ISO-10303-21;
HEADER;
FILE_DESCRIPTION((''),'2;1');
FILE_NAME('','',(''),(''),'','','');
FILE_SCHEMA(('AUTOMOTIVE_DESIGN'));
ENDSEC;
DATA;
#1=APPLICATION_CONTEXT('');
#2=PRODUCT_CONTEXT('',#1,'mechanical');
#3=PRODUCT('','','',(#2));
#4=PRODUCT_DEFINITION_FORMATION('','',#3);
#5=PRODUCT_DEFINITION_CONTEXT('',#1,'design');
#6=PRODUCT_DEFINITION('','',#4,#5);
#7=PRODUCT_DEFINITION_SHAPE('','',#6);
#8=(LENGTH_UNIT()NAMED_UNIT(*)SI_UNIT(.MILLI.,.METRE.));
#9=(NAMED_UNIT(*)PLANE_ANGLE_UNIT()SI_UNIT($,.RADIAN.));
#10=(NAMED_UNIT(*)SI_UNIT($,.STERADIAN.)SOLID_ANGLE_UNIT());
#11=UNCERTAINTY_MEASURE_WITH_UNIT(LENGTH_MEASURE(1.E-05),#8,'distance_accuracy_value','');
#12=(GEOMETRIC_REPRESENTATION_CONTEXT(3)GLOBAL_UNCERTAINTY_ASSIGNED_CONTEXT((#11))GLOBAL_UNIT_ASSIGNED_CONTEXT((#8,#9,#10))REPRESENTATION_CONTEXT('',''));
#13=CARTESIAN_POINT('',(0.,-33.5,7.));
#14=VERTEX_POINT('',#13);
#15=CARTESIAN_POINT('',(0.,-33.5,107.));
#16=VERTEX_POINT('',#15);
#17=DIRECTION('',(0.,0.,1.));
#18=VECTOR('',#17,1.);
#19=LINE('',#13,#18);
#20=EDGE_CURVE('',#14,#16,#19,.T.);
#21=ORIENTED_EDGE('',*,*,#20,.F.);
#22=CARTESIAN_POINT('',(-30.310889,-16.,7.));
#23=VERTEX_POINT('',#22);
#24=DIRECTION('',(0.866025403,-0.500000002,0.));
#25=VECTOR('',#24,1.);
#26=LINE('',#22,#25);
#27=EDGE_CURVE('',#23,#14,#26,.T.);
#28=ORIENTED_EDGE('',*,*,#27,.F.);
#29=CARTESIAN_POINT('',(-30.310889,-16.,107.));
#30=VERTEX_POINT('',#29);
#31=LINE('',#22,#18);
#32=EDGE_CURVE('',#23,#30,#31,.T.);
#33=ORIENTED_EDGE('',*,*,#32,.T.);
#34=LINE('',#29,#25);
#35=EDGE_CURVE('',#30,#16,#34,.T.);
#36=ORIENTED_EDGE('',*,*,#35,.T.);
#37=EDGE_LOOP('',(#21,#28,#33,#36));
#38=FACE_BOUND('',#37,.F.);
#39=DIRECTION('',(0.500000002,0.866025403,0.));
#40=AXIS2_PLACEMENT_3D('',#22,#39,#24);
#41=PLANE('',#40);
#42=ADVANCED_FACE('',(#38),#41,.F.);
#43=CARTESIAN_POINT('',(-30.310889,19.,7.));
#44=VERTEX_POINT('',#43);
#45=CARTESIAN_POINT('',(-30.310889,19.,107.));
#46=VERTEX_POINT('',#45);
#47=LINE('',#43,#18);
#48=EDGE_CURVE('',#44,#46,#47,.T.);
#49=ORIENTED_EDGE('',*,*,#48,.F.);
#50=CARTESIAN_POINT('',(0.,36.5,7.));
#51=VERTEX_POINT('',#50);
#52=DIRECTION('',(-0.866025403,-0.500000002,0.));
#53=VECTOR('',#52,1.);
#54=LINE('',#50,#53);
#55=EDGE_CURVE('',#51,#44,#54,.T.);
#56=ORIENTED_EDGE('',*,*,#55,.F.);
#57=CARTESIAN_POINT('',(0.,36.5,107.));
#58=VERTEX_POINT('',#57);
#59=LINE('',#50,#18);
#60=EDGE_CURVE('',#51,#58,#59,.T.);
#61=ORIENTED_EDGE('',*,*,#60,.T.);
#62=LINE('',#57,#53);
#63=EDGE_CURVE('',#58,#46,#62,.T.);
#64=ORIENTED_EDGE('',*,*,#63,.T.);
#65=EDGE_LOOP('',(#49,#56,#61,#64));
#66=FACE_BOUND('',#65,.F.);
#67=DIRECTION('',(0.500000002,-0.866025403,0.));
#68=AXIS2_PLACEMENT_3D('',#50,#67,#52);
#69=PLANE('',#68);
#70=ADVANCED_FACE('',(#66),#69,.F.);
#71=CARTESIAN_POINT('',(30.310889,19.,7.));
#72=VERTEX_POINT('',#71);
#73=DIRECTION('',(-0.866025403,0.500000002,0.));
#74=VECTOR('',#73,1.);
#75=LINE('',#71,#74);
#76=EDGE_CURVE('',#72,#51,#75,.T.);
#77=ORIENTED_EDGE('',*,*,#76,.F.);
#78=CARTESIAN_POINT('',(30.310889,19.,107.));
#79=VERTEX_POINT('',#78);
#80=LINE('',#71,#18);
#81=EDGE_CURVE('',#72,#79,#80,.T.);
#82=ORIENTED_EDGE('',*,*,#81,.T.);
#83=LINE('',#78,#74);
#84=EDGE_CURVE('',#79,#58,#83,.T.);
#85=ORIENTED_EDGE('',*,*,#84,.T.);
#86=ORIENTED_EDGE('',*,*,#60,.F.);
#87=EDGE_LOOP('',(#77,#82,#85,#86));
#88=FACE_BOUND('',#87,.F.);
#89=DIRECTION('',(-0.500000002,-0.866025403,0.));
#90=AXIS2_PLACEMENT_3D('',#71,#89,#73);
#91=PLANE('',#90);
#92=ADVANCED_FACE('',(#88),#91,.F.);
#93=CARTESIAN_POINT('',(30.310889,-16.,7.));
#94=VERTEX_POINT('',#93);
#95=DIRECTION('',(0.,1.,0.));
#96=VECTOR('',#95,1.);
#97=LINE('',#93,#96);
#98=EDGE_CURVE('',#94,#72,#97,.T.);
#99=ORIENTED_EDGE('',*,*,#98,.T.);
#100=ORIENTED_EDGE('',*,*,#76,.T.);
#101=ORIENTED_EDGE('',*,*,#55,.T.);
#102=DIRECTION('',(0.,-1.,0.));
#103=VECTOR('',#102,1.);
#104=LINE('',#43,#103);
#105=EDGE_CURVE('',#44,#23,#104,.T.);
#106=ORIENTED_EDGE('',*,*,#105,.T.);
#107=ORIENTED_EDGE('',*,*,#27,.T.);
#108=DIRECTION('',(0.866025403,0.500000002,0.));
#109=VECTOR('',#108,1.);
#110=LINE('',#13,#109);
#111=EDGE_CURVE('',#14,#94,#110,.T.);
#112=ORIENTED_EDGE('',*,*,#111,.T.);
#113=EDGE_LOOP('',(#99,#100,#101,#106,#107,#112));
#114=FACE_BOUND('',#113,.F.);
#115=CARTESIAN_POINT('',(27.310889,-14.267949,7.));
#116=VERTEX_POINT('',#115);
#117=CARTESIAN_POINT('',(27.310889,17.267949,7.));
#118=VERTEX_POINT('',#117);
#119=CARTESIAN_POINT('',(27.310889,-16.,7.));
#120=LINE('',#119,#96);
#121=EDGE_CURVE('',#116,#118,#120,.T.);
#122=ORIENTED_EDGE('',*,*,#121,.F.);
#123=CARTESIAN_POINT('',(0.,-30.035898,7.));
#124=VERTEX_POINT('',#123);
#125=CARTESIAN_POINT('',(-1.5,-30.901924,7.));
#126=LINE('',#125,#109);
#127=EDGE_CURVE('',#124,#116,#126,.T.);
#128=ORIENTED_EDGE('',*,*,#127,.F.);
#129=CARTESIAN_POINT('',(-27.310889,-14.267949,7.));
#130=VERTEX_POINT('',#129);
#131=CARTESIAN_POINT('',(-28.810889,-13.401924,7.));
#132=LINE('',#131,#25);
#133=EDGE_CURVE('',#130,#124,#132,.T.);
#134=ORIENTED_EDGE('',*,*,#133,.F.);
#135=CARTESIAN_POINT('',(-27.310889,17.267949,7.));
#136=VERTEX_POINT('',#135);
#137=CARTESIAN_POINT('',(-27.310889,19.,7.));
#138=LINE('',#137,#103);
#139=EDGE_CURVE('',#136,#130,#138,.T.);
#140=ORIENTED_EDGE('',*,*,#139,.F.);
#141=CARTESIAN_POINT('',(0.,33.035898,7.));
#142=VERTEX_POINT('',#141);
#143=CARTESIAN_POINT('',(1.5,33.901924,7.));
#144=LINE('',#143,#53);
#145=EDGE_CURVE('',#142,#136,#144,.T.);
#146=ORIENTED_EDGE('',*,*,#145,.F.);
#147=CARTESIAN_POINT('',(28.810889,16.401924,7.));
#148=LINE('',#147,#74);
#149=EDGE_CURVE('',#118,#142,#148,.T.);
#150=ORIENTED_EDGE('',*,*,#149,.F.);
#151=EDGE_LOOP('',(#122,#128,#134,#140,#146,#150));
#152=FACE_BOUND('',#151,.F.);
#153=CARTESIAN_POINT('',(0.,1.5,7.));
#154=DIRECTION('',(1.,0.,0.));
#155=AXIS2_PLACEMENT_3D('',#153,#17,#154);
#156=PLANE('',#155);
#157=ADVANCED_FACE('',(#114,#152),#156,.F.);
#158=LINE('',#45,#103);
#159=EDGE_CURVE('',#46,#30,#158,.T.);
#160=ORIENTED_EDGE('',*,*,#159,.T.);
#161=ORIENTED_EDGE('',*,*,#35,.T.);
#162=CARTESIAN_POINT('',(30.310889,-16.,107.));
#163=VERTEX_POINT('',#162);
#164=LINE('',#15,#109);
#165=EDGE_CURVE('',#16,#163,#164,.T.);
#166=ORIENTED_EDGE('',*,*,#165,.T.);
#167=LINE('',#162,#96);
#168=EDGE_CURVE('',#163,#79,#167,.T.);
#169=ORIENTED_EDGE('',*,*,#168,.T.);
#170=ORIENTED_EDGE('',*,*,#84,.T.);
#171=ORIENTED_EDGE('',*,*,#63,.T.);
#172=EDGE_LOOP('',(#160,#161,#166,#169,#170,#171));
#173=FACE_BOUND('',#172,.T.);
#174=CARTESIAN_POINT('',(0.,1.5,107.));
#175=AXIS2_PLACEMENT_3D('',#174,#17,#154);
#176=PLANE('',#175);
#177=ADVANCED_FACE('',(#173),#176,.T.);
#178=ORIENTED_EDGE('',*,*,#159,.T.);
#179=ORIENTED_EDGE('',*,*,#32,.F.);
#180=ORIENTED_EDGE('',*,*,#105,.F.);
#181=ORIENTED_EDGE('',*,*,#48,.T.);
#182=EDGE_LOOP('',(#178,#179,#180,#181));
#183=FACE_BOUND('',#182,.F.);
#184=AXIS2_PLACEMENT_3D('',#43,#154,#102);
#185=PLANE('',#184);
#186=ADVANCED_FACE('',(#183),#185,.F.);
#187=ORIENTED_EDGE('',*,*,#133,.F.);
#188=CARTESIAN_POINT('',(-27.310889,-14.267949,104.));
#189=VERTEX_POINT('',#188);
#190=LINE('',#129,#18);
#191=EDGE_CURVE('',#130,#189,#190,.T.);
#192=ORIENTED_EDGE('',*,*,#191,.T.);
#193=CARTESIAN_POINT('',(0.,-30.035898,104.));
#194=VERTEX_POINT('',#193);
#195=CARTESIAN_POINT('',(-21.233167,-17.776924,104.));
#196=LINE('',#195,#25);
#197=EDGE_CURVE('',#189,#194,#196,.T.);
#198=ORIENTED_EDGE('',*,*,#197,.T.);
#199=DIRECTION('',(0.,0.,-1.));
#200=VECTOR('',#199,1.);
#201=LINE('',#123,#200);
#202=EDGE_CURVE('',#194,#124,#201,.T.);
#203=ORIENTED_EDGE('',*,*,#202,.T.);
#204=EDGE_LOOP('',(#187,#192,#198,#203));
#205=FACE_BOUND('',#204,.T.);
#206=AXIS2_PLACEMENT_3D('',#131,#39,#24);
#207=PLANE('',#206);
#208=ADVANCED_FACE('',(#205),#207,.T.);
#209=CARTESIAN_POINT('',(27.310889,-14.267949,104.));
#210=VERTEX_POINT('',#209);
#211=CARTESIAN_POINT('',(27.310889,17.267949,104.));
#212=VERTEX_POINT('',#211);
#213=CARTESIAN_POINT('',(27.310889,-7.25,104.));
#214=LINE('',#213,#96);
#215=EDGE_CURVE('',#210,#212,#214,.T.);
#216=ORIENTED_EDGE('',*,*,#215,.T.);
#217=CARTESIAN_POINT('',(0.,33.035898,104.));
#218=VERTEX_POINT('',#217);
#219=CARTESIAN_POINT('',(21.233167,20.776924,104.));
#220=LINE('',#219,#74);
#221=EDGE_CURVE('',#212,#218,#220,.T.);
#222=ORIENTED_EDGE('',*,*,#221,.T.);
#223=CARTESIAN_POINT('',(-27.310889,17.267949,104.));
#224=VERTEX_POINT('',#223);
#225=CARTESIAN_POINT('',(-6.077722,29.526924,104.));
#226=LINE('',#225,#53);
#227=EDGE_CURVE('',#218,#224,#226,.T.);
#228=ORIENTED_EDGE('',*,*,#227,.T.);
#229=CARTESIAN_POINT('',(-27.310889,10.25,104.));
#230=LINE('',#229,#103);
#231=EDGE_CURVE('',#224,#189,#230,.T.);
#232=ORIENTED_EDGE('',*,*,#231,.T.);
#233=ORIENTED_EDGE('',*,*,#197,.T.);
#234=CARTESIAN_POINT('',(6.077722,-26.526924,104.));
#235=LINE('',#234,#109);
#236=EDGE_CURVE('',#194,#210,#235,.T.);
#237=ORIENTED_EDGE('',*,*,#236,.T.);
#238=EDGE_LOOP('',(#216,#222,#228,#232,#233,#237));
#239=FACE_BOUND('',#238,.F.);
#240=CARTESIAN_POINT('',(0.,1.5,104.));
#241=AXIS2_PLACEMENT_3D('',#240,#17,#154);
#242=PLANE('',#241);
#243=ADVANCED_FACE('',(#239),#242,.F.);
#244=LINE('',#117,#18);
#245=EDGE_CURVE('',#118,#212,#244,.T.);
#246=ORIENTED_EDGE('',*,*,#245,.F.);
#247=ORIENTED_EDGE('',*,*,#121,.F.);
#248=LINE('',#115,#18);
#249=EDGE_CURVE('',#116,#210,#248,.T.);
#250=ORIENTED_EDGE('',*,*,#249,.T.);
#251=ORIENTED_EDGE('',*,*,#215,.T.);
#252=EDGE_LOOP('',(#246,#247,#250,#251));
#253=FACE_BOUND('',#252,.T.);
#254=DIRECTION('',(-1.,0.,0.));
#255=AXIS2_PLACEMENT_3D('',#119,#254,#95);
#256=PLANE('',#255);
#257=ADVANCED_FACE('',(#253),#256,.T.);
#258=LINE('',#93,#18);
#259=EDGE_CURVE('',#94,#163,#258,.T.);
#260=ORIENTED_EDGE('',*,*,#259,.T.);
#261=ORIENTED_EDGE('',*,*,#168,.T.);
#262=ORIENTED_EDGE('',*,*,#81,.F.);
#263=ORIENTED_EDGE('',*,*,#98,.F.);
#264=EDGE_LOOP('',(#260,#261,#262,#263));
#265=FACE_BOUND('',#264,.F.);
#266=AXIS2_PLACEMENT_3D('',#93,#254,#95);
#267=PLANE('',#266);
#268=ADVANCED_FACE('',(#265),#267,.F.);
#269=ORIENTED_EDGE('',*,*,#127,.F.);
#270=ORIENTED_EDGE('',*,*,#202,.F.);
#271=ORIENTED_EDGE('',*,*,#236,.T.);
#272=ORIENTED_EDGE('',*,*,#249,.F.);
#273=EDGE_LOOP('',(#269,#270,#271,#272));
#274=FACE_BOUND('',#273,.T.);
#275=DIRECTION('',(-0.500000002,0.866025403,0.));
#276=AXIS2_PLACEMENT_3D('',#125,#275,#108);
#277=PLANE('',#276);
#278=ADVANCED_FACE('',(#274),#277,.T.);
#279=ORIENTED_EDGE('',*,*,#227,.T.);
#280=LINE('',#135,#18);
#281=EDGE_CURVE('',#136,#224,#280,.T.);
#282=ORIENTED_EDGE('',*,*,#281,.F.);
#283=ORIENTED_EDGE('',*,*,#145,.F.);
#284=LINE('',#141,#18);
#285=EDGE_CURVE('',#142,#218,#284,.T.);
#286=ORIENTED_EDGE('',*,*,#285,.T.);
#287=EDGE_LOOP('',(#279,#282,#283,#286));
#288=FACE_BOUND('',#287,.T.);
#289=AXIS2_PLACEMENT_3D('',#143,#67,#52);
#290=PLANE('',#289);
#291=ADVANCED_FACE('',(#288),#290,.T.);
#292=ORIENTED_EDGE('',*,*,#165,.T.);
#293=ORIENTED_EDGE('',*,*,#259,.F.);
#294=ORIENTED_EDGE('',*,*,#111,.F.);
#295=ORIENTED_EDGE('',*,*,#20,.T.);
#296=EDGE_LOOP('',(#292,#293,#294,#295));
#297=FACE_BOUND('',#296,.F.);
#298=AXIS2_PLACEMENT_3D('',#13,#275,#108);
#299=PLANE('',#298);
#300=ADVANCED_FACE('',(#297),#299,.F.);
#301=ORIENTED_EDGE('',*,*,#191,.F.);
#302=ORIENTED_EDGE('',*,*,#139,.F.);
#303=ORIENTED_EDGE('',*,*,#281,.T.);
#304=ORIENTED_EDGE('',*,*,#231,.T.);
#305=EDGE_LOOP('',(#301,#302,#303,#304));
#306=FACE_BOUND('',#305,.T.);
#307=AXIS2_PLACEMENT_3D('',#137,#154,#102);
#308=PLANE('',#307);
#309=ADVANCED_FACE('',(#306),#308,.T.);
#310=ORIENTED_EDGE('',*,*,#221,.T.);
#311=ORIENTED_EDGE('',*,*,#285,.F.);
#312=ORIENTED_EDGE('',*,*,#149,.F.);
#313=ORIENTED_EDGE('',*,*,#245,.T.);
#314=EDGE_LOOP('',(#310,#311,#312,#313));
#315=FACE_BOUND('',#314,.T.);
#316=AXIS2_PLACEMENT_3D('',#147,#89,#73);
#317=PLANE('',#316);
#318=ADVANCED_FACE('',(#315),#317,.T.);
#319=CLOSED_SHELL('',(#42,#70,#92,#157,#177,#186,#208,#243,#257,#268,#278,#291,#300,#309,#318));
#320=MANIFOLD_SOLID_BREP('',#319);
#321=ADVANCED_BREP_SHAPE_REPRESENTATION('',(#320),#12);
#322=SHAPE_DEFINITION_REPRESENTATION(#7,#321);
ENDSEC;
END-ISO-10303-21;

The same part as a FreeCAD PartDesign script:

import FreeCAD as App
import Part
import Sketcher

V = App.Vector
Q = App.Units.Quantity


def faces_at(feature, points):
    """Names of the faces that lie closest to the given points."""
    faces = feature.Shape.Faces
    near = lambda p: min(range(len(faces)), key=lambda i: faces[i].distToShape(Part.Vertex(*p))[0])
    return sorted({f"Face{near(p) + 1}" for p in points})

doc = App.newDocument("Part")
body = doc.addObject("PartDesign::Body", "Body")

# Sketch on XY plane
sketch1 = body.newObject("Sketcher::SketchObject", "Sketch")
sketch1.AttachmentSupport = (doc.getObject("XY_Plane"), [""])
sketch1.MapMode = "FlatFace"
sketch1.addGeometry([
    Part.LineSegment(V(0, -35, 0), V(30, -18, 0)),  # 0
    Part.LineSegment(V(30, -18, 0), V(30, 18, 0)),  # 1
    Part.LineSegment(V(30, 18, 0), V(0, 35, 0)),  # 2
    Part.LineSegment(V(0, 35, 0), V(-30, 18, 0)),  # 3
    Part.LineSegment(V(-30, 18, 0), V(-30, -18, 0)),  # 4
    Part.LineSegment(V(-30, -18, 0), V(0, -35, 0)),  # 5
], False)
sketch1.addConstraint([
    Sketcher.Constraint("Coincident", 0, 2, 1, 1),
    Sketcher.Constraint("Coincident", 1, 2, 2, 1),
    Sketcher.Constraint("Coincident", 2, 2, 3, 1),
    Sketcher.Constraint("Coincident", 3, 2, 4, 1),
    Sketcher.Constraint("Coincident", 4, 2, 5, 1),
    Sketcher.Constraint("Coincident", 5, 2, 0, 1),
    Sketcher.Constraint("Vertical", 1),
    Sketcher.Constraint("Vertical", 4),
    Sketcher.Constraint("Symmetric", 0, 2, 3, 2, -1, 1),
    Sketcher.Constraint("Symmetric", 2, 2, 5, 2, -1, 1),
    Sketcher.Constraint("PointOnObject", 2, 2, -2),
    Sketcher.Constraint("Parallel", 2, 5),
    Sketcher.Constraint("Horizontal", 1, 2, 3, 2),
    Sketcher.Constraint("DistanceY", 1, 1, 1, 2, Q("35 mm")),
    Sketcher.Constraint("Angle", 0, Q("30 deg")),
    Sketcher.Constraint("Distance", 0, Q("35 mm")),
])
pad1 = body.newObject("PartDesign::Pad", "Pad")
pad1.Profile = sketch1
pad1.Length = 100
doc.recompute()

thickness = body.newObject("PartDesign::Thickness", "Thickness")
thickness.Base = (pad1, faces_at(pad1, [(0, 0, 0)]))
thickness.Value = 3
thickness.Reversed = True
thickness.Join = "Arc"
body2 = doc.addObject("PartDesign::Body", "Body001")
doc.recompute()

body.Placement = App.Placement(V(0, 1.5, 7), App.Rotation(V(0, 0, 1), 0))
boolean = body2.newObject("PartDesign::Boolean", "Boolean")
boolean.Type = "Fuse"
boolean.addObjects([body])

doc.recompute()
